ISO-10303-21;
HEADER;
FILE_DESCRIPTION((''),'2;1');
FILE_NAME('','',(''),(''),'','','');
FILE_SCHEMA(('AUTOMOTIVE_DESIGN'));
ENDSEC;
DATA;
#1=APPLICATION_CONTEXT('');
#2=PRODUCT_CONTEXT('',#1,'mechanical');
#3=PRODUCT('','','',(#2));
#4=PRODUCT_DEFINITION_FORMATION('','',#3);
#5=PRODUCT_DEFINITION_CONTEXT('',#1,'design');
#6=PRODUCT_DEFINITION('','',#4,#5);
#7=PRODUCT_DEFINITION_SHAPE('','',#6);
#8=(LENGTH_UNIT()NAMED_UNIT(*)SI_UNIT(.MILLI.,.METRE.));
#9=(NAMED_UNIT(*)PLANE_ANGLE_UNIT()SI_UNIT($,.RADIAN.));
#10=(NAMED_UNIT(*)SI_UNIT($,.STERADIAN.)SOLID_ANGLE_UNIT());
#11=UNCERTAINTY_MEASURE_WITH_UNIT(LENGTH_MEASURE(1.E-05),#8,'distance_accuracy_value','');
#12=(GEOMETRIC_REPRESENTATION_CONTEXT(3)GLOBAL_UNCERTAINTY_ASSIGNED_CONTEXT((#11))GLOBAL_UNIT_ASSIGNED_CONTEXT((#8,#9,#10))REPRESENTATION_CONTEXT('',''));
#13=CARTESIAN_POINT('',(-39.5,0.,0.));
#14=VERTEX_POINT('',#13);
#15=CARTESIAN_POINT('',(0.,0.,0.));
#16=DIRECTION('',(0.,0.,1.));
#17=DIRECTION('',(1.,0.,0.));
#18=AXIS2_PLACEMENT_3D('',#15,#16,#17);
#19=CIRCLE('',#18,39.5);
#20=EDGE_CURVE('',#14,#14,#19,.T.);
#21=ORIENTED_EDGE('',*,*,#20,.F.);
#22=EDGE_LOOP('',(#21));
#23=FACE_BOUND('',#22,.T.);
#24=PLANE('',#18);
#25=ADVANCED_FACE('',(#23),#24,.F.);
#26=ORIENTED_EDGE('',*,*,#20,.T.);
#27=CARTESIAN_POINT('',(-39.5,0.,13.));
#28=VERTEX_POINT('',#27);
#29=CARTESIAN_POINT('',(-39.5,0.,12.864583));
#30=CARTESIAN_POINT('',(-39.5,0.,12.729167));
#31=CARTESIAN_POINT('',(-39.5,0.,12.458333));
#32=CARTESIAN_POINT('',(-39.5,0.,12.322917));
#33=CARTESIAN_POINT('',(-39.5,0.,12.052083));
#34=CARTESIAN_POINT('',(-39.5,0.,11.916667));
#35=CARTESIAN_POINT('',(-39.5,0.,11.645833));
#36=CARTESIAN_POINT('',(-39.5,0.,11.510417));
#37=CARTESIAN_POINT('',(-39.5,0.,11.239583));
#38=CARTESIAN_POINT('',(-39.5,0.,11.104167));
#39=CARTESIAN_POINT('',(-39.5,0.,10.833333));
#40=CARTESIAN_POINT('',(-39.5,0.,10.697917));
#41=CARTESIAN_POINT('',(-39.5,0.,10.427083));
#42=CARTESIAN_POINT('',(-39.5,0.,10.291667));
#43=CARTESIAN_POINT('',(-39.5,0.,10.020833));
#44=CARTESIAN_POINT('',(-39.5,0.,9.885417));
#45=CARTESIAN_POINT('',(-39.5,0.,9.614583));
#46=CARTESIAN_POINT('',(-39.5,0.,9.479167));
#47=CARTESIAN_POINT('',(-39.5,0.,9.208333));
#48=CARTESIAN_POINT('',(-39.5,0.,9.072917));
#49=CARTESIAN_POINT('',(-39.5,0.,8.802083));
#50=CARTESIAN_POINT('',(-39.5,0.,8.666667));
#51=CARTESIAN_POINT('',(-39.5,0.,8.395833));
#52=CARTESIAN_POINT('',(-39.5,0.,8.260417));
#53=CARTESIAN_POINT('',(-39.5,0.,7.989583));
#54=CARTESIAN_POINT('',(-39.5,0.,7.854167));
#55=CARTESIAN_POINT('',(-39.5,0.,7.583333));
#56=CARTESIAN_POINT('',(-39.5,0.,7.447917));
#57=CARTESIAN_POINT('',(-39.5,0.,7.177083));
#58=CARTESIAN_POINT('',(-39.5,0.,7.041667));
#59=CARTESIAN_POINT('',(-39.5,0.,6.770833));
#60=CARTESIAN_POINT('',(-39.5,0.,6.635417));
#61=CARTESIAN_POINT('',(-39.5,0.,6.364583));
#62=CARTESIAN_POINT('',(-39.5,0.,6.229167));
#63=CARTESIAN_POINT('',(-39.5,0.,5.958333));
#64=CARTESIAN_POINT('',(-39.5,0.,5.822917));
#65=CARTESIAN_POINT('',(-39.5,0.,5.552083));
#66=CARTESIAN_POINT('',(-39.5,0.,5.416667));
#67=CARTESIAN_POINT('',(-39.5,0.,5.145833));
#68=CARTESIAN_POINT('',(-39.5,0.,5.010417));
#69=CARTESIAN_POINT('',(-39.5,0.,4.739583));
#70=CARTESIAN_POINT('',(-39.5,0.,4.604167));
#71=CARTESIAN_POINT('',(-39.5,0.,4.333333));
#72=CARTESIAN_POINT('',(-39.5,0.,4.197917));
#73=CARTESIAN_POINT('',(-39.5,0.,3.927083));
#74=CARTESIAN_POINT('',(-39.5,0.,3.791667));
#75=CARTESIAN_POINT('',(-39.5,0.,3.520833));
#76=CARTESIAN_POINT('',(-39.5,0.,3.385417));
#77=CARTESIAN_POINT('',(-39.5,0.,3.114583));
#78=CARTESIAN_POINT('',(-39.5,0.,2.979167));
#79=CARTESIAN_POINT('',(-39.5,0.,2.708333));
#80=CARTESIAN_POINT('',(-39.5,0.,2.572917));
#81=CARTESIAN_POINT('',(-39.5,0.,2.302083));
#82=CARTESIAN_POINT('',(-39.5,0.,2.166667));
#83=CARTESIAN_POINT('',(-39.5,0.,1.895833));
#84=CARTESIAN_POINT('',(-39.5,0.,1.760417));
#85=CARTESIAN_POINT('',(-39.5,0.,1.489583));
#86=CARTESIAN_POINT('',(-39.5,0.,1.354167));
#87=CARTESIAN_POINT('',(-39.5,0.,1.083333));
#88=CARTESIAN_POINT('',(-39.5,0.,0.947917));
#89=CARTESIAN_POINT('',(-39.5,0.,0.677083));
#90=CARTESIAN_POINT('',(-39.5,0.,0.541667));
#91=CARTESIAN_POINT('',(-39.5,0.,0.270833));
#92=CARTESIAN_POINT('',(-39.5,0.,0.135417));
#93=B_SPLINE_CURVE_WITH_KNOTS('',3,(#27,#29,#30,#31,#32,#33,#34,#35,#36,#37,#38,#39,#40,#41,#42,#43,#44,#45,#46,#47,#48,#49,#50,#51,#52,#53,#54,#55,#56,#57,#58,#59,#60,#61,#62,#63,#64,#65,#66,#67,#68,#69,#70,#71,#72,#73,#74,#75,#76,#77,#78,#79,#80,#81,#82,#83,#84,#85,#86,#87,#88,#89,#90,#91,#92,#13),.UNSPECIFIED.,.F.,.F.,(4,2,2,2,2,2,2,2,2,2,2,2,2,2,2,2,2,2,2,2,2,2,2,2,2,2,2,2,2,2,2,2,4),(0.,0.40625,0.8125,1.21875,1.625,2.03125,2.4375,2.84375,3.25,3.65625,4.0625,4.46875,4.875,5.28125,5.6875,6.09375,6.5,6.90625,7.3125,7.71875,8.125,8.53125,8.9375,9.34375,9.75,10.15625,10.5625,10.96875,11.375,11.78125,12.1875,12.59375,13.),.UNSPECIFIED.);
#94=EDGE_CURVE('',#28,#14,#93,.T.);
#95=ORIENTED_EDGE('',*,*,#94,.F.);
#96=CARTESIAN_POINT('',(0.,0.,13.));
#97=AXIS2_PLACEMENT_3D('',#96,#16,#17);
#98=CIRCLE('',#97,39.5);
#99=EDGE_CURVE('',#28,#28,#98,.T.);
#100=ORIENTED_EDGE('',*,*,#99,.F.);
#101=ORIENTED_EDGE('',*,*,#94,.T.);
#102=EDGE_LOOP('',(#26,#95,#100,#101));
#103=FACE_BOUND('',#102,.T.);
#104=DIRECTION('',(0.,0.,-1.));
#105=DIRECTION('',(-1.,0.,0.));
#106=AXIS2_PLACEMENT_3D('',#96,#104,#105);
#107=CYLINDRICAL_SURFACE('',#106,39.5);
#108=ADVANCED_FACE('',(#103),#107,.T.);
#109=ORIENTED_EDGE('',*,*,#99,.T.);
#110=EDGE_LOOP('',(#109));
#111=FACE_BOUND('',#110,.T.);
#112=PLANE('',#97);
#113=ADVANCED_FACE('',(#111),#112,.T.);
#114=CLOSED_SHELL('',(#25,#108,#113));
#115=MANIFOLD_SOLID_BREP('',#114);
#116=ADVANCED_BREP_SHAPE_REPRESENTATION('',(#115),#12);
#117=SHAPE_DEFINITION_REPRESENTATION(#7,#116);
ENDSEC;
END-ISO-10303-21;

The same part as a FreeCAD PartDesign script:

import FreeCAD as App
import Part
import Sketcher

doc = App.newDocument("Part")
body = doc.addObject("PartDesign::Body", "Body")

sketch1 = doc.addObject("Sketcher::SketchObject", "Sketch")
body.addObject(sketch1)
sketch1.AttachmentSupport = (doc.XY_Plane, [""])
sketch1.MapMode = "FlatFace"
sketch1.addGeometry(Part.Circle(App.Vector(0, 0, 0), App.Vector(0, 0, 1), 39.5), False)
sketch1.addConstraint([
    Sketcher.Constraint("Coincident", 0, 3, -1, 1),
    Sketcher.Constraint("Diameter", 0, 79.0),
])
pad1 = doc.addObject("PartDesign::Pad", "Pad")
body.addObject(pad1)
pad1.Profile = sketch1
pad1.Length = 13

doc.recompute()
